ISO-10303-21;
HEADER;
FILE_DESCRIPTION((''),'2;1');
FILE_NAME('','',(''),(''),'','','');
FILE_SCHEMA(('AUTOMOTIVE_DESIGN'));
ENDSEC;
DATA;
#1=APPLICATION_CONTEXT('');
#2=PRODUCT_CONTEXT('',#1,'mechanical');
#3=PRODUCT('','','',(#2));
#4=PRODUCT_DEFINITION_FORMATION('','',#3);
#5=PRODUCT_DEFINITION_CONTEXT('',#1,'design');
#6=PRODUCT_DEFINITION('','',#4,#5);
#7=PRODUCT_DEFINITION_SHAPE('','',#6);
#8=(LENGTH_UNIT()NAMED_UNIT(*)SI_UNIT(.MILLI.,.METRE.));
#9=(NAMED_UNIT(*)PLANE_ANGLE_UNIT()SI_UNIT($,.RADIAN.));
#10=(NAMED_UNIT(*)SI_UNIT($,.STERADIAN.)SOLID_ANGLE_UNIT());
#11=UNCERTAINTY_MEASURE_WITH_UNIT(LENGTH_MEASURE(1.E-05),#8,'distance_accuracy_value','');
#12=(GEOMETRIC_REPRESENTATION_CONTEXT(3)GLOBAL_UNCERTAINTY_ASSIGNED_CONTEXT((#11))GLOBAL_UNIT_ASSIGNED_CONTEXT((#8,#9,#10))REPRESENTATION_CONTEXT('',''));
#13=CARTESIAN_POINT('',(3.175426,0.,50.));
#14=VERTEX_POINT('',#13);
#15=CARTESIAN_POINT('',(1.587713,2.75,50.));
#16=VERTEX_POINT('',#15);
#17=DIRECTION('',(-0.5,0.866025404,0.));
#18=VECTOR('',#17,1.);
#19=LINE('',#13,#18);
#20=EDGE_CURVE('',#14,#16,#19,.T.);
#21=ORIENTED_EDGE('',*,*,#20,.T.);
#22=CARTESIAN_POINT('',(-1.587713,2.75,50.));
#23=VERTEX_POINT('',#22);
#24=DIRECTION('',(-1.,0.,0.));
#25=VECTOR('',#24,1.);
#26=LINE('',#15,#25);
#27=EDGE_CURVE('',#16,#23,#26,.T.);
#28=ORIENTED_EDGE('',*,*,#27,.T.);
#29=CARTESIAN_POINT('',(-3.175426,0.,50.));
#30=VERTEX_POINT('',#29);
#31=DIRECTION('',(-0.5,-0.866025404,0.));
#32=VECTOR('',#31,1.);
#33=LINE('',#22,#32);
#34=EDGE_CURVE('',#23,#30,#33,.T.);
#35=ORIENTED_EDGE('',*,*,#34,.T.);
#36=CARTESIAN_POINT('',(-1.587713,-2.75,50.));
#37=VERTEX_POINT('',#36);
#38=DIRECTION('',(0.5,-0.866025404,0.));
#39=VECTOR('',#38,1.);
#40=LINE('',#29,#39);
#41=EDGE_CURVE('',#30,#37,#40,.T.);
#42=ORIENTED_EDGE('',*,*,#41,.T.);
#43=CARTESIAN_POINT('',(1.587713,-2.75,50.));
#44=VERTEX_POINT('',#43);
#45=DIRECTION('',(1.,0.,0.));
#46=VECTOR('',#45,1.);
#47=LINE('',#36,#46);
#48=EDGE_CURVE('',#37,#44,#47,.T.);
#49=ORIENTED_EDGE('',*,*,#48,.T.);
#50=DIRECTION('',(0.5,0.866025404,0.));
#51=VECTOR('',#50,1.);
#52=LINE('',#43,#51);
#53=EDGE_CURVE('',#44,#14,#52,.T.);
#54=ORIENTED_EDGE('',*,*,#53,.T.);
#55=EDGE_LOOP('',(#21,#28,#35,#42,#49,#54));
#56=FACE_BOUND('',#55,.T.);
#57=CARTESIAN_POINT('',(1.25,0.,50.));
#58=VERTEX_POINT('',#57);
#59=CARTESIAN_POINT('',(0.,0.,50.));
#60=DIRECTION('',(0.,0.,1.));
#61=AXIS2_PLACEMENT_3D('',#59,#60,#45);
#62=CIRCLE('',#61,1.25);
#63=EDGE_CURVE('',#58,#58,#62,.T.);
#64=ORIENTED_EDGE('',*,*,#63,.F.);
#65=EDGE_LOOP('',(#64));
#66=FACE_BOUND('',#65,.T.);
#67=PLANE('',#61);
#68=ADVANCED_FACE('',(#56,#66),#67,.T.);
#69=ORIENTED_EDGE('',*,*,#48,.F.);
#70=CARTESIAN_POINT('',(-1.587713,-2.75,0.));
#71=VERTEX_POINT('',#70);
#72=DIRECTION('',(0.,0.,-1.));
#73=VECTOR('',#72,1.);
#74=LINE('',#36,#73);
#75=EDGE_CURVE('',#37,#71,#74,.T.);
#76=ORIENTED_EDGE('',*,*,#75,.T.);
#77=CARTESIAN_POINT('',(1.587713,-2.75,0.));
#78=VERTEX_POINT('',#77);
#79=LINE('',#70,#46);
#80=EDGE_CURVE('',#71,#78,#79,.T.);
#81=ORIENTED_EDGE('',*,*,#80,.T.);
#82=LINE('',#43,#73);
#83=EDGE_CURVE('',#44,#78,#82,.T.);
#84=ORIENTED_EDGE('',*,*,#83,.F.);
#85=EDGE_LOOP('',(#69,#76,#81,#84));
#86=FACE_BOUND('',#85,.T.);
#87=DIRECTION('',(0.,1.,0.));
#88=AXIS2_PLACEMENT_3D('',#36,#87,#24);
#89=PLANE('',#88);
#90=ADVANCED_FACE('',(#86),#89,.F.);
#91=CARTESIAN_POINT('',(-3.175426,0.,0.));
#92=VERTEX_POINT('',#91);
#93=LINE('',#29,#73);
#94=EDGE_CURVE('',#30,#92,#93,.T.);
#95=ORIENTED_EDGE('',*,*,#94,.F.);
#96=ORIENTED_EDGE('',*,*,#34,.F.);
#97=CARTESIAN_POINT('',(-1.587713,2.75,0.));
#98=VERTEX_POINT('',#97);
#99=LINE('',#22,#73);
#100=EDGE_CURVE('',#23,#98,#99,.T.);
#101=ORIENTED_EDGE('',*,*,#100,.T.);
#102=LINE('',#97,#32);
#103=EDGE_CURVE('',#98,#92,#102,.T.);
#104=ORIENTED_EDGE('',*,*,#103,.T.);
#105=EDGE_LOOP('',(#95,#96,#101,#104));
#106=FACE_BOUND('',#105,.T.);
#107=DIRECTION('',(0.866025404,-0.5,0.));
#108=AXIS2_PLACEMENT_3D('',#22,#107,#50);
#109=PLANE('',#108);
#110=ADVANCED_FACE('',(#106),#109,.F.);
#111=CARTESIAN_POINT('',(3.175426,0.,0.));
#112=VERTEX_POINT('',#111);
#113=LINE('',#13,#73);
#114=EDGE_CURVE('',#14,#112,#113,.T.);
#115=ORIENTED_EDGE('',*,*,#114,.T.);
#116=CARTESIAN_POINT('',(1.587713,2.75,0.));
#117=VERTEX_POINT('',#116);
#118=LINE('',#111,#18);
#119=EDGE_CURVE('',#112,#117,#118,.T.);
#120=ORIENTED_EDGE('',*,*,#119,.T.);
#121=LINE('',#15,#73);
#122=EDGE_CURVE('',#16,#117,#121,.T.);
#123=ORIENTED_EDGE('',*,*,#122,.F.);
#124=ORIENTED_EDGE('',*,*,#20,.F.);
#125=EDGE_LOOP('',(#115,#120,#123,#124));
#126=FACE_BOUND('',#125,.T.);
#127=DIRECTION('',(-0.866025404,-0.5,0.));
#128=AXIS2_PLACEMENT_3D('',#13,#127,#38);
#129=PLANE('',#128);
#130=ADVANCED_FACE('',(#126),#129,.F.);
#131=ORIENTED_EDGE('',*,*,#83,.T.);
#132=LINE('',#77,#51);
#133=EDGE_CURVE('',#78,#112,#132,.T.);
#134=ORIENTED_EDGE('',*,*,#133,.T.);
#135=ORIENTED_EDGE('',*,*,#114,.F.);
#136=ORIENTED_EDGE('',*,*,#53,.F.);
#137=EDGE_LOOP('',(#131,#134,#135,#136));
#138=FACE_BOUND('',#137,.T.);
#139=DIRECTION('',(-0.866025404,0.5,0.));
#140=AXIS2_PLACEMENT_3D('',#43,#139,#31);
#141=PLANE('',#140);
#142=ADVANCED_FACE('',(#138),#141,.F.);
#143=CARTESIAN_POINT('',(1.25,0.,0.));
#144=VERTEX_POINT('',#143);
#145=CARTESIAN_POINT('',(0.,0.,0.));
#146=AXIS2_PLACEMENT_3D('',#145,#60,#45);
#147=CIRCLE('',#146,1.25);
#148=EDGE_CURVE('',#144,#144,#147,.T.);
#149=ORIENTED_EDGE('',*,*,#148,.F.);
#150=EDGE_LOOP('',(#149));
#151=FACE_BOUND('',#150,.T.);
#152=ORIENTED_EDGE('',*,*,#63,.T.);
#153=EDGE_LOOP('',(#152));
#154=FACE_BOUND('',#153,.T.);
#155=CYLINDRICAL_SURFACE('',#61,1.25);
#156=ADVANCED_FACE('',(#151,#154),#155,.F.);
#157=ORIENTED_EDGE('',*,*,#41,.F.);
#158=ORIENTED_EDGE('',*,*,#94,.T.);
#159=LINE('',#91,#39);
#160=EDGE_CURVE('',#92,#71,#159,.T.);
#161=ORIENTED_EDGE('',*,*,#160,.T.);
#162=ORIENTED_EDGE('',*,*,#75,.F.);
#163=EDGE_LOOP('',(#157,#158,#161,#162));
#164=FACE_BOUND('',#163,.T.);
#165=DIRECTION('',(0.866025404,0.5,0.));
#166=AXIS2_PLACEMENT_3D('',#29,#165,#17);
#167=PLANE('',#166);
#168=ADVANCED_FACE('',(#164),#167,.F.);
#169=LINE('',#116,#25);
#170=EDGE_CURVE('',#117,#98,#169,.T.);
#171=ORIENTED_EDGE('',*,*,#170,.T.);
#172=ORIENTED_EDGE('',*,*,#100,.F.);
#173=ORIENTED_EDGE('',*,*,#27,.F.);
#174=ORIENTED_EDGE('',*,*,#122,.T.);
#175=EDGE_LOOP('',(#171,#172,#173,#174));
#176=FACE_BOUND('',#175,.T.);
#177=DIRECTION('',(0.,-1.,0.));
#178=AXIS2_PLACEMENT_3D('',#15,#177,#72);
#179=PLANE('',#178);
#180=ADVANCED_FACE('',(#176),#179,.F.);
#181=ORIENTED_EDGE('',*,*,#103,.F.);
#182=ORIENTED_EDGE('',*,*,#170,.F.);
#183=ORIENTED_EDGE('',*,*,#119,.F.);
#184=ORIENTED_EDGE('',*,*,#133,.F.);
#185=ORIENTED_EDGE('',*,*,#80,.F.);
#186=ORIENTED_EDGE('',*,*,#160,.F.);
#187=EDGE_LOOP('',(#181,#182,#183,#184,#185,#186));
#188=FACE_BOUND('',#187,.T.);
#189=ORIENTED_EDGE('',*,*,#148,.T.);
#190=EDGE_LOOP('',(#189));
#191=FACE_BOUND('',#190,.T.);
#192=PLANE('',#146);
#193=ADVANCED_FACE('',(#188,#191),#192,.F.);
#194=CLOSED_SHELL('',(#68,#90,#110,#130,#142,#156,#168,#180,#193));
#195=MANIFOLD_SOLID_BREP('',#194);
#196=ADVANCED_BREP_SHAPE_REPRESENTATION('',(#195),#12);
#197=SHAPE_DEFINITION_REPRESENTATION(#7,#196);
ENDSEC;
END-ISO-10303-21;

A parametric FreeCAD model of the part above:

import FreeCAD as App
import Part
import Sketcher
from FreeCAD import Vector
Q = App.Units.Quantity

doc = App.newDocument("Part")
body = doc.addObject("PartDesign::Body", "Body")

sketch1 = body.newObject("Sketcher::SketchObject", "Sketch")
sketch1.AttachmentSupport = (doc.getObject("XY_Plane"), [""])
sketch1.MapMode = "FlatFace"
sketch1.addGeometry(Part.LineSegment(Vector(3.175426, 0, 0), Vector(1.587713, 2.75, 0)), False)
sketch1.addGeometry(Part.LineSegment(Vector(1.587713, 2.75, 0), Vector(-1.587713, 2.75, 0)), False)
sketch1.addGeometry(Part.LineSegment(Vector(-1.587713, 2.75, 0), Vector(-3.175426, 0, 0)), False)
sketch1.addGeometry(Part.LineSegment(Vector(-3.175426, 0, 0), Vector(-1.587713, -2.75, 0)), False)
sketch1.addGeometry(Part.LineSegment(Vector(-1.587713, -2.75, 0), Vector(1.587713, -2.75, 0)), False)
sketch1.addGeometry(Part.LineSegment(Vector(1.587713, -2.75, 0), Vector(3.175426, 0, 0)), False)
sketch1.addConstraint(Sketcher.Constraint("Coincident", 0, 2, 1, 1))
sketch1.addConstraint(Sketcher.Constraint("Coincident", 1, 2, 2, 1))
sketch1.addConstraint(Sketcher.Constraint("Coincident", 2, 2, 3, 1))
sketch1.addConstraint(Sketcher.Constraint("Coincident", 3, 2, 4, 1))
sketch1.addConstraint(Sketcher.Constraint("Coincident", 4, 2, 5, 1))
sketch1.addConstraint(Sketcher.Constraint("Coincident", 5, 2, 0, 1))
sketch1.addConstraint(Sketcher.Constraint("Horizontal", 1))
sketch1.addConstraint(Sketcher.Constraint("Horizontal", 4))
sketch1.addConstraint(Sketcher.Constraint("Symmetric", 0, 2, 3, 2, -1, 1))
sketch1.addConstraint(Sketcher.Constraint("Symmetric", 2, 2, 5, 2, -1, 1))
sketch1.addConstraint(Sketcher.Constraint("PointOnObject", 2, 2, -1))
sketch1.addConstraint(Sketcher.Constraint("Parallel", 2, 5))
sketch1.addConstraint(Sketcher.Constraint("Vertical", 1, 2, 3, 2))
sketch1.addConstraint(Sketcher.Constraint("Angle", 0, Q("120 deg")))
sketch1.addConstraint(Sketcher.Constraint("DistanceY", 3, 2, 1, 2, Q("5.5 mm")))
sketch1.addConstraint(Sketcher.Constraint("DistanceX", 1, 2, 1, 1, Q("3.175426 mm")))
pad1 = body.newObject("PartDesign::Pad", "Pad")
pad1.Profile = sketch1
pad1.Length = 50

sketch2 = body.newObject("Sketcher::SketchObject", "Sketch001")
sketch2.AttachmentSupport = (doc.getObject("XY_Plane"), [""])
sketch2.MapMode = "FlatFace"
sketch2.AttachmentOffset = App.Placement(Vector(0, 0, 50), App.Rotation())
sketch2.addGeometry(Part.Circle(Vector(0, 0, 0), Vector(0, 0, 1), 1.25), False)
sketch2.addConstraint(Sketcher.Constraint("Coincident", 0, 3, -1, 1))
sketch2.addConstraint(Sketcher.Constraint("Diameter", 0, Q("2.5 mm")))
doc.recompute()
hole = body.newObject("PartDesign::Hole", "Hole")
hole.Profile = sketch2
hole.ThreadType = "None"
hole.Diameter = 2.5
hole.DepthType = "ThroughAll"

doc.recompute()
